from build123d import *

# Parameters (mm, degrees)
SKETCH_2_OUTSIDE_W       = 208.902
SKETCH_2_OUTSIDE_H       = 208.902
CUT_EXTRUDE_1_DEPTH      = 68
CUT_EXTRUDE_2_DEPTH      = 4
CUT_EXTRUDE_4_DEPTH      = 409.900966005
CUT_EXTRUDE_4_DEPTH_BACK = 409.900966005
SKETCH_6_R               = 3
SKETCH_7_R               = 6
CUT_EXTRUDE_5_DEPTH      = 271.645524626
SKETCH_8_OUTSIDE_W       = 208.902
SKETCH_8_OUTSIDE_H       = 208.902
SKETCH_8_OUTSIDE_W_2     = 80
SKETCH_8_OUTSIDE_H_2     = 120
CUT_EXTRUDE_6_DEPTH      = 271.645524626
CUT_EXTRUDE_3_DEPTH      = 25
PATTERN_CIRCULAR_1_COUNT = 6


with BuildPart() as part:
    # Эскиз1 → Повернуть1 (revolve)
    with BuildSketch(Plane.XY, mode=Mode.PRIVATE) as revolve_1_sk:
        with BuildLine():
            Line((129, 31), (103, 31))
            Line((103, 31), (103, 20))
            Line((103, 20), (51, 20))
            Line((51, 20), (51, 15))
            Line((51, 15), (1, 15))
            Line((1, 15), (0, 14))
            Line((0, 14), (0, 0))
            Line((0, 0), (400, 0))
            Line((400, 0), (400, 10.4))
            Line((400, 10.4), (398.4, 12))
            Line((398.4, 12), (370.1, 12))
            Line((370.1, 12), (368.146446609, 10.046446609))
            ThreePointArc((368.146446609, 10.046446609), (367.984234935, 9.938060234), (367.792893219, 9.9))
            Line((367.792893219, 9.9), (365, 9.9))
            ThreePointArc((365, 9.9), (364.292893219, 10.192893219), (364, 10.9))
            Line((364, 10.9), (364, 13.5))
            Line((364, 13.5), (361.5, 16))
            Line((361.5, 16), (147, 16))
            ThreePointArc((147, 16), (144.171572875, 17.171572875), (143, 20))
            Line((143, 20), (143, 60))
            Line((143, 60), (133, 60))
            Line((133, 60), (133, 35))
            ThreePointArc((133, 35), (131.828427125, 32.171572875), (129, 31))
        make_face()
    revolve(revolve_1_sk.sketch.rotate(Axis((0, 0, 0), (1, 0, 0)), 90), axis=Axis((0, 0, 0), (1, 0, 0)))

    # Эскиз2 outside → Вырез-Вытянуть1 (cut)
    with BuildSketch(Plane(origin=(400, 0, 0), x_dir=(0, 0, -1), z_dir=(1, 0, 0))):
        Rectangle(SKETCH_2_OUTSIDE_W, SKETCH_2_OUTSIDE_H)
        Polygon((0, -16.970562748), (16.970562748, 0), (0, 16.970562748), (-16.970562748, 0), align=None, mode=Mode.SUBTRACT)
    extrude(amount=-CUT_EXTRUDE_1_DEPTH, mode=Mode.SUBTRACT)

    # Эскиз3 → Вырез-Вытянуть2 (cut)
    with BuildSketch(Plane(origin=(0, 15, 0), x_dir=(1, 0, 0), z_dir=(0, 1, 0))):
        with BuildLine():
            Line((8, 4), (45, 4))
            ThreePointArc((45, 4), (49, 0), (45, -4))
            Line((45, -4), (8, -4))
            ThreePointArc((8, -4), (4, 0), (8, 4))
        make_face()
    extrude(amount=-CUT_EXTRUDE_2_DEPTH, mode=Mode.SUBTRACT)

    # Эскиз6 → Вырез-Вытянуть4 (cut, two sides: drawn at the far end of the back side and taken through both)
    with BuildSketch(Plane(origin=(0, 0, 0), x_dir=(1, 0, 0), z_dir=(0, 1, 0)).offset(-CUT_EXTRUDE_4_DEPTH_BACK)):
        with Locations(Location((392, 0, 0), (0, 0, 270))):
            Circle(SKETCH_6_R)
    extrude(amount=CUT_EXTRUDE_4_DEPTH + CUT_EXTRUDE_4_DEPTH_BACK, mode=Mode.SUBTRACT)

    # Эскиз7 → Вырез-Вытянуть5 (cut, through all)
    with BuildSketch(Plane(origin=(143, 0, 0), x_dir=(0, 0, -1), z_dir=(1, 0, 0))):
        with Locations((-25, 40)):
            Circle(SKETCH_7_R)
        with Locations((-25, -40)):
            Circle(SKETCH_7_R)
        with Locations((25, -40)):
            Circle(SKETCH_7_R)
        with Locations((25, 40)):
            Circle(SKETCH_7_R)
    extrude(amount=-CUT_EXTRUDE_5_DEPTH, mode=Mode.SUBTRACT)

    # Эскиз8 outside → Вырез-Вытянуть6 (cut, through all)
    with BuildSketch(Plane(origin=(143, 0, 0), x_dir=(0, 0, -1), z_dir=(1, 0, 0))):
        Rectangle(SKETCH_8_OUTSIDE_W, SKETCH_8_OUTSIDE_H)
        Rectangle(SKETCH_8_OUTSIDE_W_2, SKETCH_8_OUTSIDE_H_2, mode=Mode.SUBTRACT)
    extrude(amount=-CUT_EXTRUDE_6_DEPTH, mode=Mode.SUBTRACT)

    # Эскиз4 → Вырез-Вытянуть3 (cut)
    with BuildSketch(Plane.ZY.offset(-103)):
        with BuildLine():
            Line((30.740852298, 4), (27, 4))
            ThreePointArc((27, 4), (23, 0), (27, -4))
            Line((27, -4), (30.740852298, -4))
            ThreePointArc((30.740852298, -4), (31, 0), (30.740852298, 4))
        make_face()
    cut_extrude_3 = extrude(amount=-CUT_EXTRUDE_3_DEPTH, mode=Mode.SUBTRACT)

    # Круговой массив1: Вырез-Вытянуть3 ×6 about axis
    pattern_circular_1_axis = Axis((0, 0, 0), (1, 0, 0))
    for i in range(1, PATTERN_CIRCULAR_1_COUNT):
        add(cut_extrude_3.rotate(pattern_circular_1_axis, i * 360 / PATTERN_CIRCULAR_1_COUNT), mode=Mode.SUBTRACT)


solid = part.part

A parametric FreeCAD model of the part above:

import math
import FreeCAD as App
import Part
import Sketcher

V = App.Vector
Q = App.Units.Quantity

doc = App.newDocument("Part")
body = doc.addObject("PartDesign::Body", "Body")

# Sketch on XY plane
sketch1 = body.newObject("Sketcher::SketchObject", "Sketch")
sketch1.AttachmentSupport = (doc.getObject("XY_Plane"), [""])
sketch1.MapMode = "FlatFace"
sketch1.addGeometry(Part.LineSegment(V(129, 31, 0), V(103, 31, 0)), False)
sketch1.addGeometry(Part.LineSegment(V(103, 31, 0), V(103, 20, 0)), False)
sketch1.addGeometry(Part.LineSegment(V(103, 20, 0), V(51, 20, 0)), False)
sketch1.addGeometry(Part.LineSegment(V(51, 20, 0), V(51, 15, 0)), False)
sketch1.addGeometry(Part.LineSegment(V(51, 15, 0), V(1, 15, 0)), False)
sketch1.addGeometry(Part.LineSegment(V(1, 15, 0), V(0, 14, 0)), False)
sketch1.addGeometry(Part.LineSegment(V(0, 14, 0), V(0, 0, 0)), False)
sketch1.addGeometry(Part.LineSegment(V(0, 0, 0), V(400, 0, 0)), False)
sketch1.addGeometry(Part.LineSegment(V(400, 0, 0), V(400, 10.4, 0)), False)
sketch1.addGeometry(Part.LineSegment(V(400, 10.4, 0), V(398.4, 12, 0)), False)
sketch1.addGeometry(Part.LineSegment(V(398.4, 12, 0), V(370.1, 12, 0)), False)
sketch1.addGeometry(Part.LineSegment(V(370.1, 12, 0), V(368.146447, 10.046447, 0)), False)
sketch1.addGeometry(Part.ArcOfCircle(Part.Circle(V(367.792893, 10.4, 0), V(0, 0, 1), 0.5), math.radians(-90), math.radians(-45)), False)
sketch1.addGeometry(Part.LineSegment(V(367.792893, 9.9, 0), V(365, 9.9, 0)), False)
sketch1.addGeometry(Part.ArcOfCircle(Part.Circle(V(365, 10.9, 0), V(0, 0, 1), 1), math.radians(-180), math.radians(-90)), False)
sketch1.addGeometry(Part.LineSegment(V(364, 10.9, 0), V(364, 13.5, 0)), False)
sketch1.addGeometry(Part.LineSegment(V(364, 13.5, 0), V(361.5, 16, 0)), False)
sketch1.addGeometry(Part.LineSegment(V(361.5, 16, 0), V(147, 16, 0)), False)
sketch1.addGeometry(Part.ArcOfCircle(Part.Circle(V(147, 20, 0), V(0, 0, 1), 4), math.radians(180), math.radians(270)), False)
sketch1.addGeometry(Part.LineSegment(V(143, 20, 0), V(143, 60, 0)), False)
sketch1.addGeometry(Part.LineSegment(V(143, 60, 0), V(133, 60, 0)), False)
sketch1.addGeometry(Part.LineSegment(V(133, 60, 0), V(133, 35, 0)), False)
sketch1.addGeometry(Part.ArcOfCircle(Part.Circle(V(129, 35, 0), V(0, 0, 1), 4), math.radians(-90), math.radians(0)), False)
sketch1.addConstraint(Sketcher.Constraint("Coincident", 0, 2, 1, 1))
sketch1.addConstraint(Sketcher.Constraint("Coincident", 1, 2, 2, 1))
sketch1.addConstraint(Sketcher.Constraint("Coincident", 2, 2, 3, 1))
sketch1.addConstraint(Sketcher.Constraint("Coincident", 3, 2, 4, 1))
sketch1.addConstraint(Sketcher.Constraint("Coincident", 4, 2, 5, 1))
sketch1.addConstraint(Sketcher.Constraint("Coincident", 5, 2, 6, 1))
sketch1.addConstraint(Sketcher.Constraint("Coincident", 6, 2, 7, 1))
sketch1.addConstraint(Sketcher.Constraint("Coincident", 7, 2, 8, 1))
sketch1.addConstraint(Sketcher.Constraint("Coincident", 8, 2, 9, 1))
sketch1.addConstraint(Sketcher.Constraint("Coincident", 9, 2, 10, 1))
sketch1.addConstraint(Sketcher.Constraint("Coincident", 10, 2, 11, 1))
sketch1.addConstraint(Sketcher.Constraint("Tangent", 11, 2, 12, 2))
sketch1.addConstraint(Sketcher.Constraint("Tangent", 12, 1, 13, 1))
sketch1.addConstraint(Sketcher.Constraint("Tangent", 13, 2, 14, 2))
sketch1.addConstraint(Sketcher.Constraint("Tangent", 14, 1, 15, 1))
sketch1.addConstraint(Sketcher.Constraint("Coincident", 15, 2, 16, 1))
sketch1.addConstraint(Sketcher.Constraint("Coincident", 16, 2, 17, 1))
sketch1.addConstraint(Sketcher.Constraint("Tangent", 17, 2, 18, 2))
sketch1.addConstraint(Sketcher.Constraint("Tangent", 18, 1, 19, 1))
sketch1.addConstraint(Sketcher.Constraint("Coincident", 19, 2, 20, 1))
sketch1.addConstraint(Sketcher.Constraint("Coincident", 20, 2, 21, 1))
sketch1.addConstraint(Sketcher.Constraint("Tangent", 21, 2, 22, 2))
sketch1.addConstraint(Sketcher.Constraint("Tangent", 22, 1, 0, 1))
sketch1.addConstraint(Sketcher.Constraint("Horizontal", 0))
sketch1.addConstraint(Sketcher.Constraint("Vertical", 1))
sketch1.addConstraint(Sketcher.Constraint("Horizontal", 2))
sketch1.addConstraint(Sketcher.Constraint("Vertical", 3))
sketch1.addConstraint(Sketcher.Constraint("Horizontal", 4))
sketch1.addConstraint(Sketcher.Constraint("Vertical", 6))
sketch1.addConstraint(Sketcher.Constraint("Horizontal", 7))
sketch1.addConstraint(Sketcher.Constraint("Vertical", 8))
sketch1.addConstraint(Sketcher.Constraint("Horizontal", 10))
sketch1.addConstraint(Sketcher.Constraint("Horizontal", 13))
sketch1.addConstraint(Sketcher.Constraint("Vertical", 15))
sketch1.addConstraint(Sketcher.Constraint("Horizontal", 17))
sketch1.addConstraint(Sketcher.Constraint("Vertical", 19))
sketch1.addConstraint(Sketcher.Constraint("Horizontal", 20))
sketch1.addConstraint(Sketcher.Constraint("Vertical", 21))
sketch1.addConstraint(Sketcher.Constraint("Coincident", 6, 2, -1, 1))
sketch1.addConstraint(Sketcher.Constraint("Equal", 18, 22))
sketch1.addConstraint(Sketcher.Constraint("Perpendicular", 5, 9))
sketch1.addConstraint(Sketcher.Constraint("Perpendicular", 9, 11))
sketch1.addConstraint(Sketcher.Constraint("Perpendicular", 11, 16))
sketch1.addConstraint(Sketcher.Constraint("Horizontal", 18, 3, 1, 2))
sketch1.addConstraint(Sketcher.Constraint("Horizontal", 12, 3, 8, 2))
sketch1.addConstraint(Sketcher.Constraint("Radius", 14, Q("1 mm")))
sketch1.addConstraint(Sketcher.Constraint("Radius", 18, Q("4 mm")))
sketch1.addConstraint(Sketcher.Constraint("Radius", 12, Q("0.5 mm")))
sketch1.addConstraint(Sketcher.Constraint("DistanceX", 0, 2, 0, 1, Q("26 mm")))
sketch1.addConstraint(Sketcher.Constraint("DistanceX", 2, 2, 2, 1, Q("52 mm")))
sketch1.addConstraint(Sketcher.Constraint("DistanceX", 4, 2, 4, 1, Q("50 mm")))
sketch1.addConstraint(Sketcher.Constraint("DistanceX", 7, 1, 7, 2, Q("400 mm")))
sketch1.addConstraint(Sketcher.Constraint("DistanceX", 20, 2, 20, 1, Q("10 mm")))
sketch1.addConstraint(Sketcher.Constraint("DistanceY", 1, 2, 1, 1, Q("11 mm")))
sketch1.addConstraint(Sketcher.Constraint("DistanceY", 3, 2, 3, 1, Q("5 mm")))
sketch1.addConstraint(Sketcher.Constraint("DistanceY", 6, 2, 6, 1, Q("14 mm")))
sketch1.addConstraint(Sketcher.Constraint("DistanceY", 19, 1, 19, 2, Q("40 mm")))
sketch1.addConstraint(Sketcher.Constraint("Angle", 5, Q("-135 deg")))
sketch1.addConstraint(Sketcher.Constraint("DistanceX", 10, 2, 10, 1, Q("28.3 mm")))
sketch1.addConstraint(Sketcher.Constraint("DistanceX", 17, 2, 17, 1, Q("214.5 mm")))
sketch1.addConstraint(Sketcher.Constraint("DistanceY", 8, 1, 8, 2, Q("10.4 mm")))
sketch1.addConstraint(Sketcher.Constraint("DistanceY", 15, 1, 15, 2, Q("2.6 mm")))
sketch1.addConstraint(Sketcher.Constraint("DistanceX", -1, 1, 14, 3, Q("365 mm")))
sketch1.addConstraint(Sketcher.Constraint("DistanceY", -1, 1, 9, 2, Q("12 mm")))
revolution = body.newObject("PartDesign::Revolution", "Revolution")
revolution.Profile = sketch1
revolution.ReferenceAxis = (sketch1, ["H_Axis"])
revolution.Angle = 360

# Sketch on YZ plane
sketch2 = body.newObject("Sketcher::SketchObject", "Sketch001")
sketch2.AttachmentSupport = (doc.getObject("YZ_Plane"), [""])
sketch2.MapMode = "FlatFace"
sketch2.AttachmentOffset = App.Placement(V(0, 0, 400), App.Rotation())
sketch2.addGeometry(Part.LineSegment(V(104.451, 104.451, 0), V(-104.451, 104.451, 0)), False)
sketch2.addGeometry(Part.LineSegment(V(-104.451, 104.451, 0), V(-104.451, -104.451, 0)), False)
sketch2.addGeometry(Part.LineSegment(V(-104.451, -104.451, 0), V(104.451, -104.451, 0)), False)
sketch2.addGeometry(Part.LineSegment(V(104.451, -104.451, 0), V(104.451, 104.451, 0)), False)
sketch2.addGeometry(Part.LineSegment(V(0, -16.970563, 0), V(-16.970563, 0, 0)), False)
sketch2.addGeometry(Part.LineSegment(V(-16.970563, 0, 0), V(0, 16.970563, 0)), False)
sketch2.addGeometry(Part.LineSegment(V(0, 16.970563, 0), V(16.970563, 0, 0)), False)
sketch2.addGeometry(Part.LineSegment(V(16.970563, 0, 0), V(0, -16.970563, 0)), False)
sketch2.addConstraint(Sketcher.Constraint("Coincident", 0, 2, 1, 1))
sketch2.addConstraint(Sketcher.Constraint("Coincident", 1, 2, 2, 1))
sketch2.addConstraint(Sketcher.Constraint("Coincident", 2, 2, 3, 1))
sketch2.addConstraint(Sketcher.Constraint("Coincident", 3, 2, 0, 1))
sketch2.addConstraint(Sketcher.Constraint("Coincident", 4, 2, 5, 1))
sketch2.addConstraint(Sketcher.Constraint("Coincident", 5, 2, 6, 1))
sketch2.addConstraint(Sketcher.Constraint("Coincident", 6, 2, 7, 1))
sketch2.addConstraint(Sketcher.Constraint("Coincident", 7, 2, 4, 1))
sketch2.addConstraint(Sketcher.Constraint("Horizontal", 0))
sketch2.addConstraint(Sketcher.Constraint("Vertical", 1))
sketch2.addConstraint(Sketcher.Constraint("Horizontal", 2))
sketch2.addConstraint(Sketcher.Constraint("Vertical", 3))
sketch2.addConstraint(Sketcher.Constraint("Symmetric", 0, 2, 2, 2, -1, 1))
sketch2.addConstraint(Sketcher.Constraint("Symmetric", 4, 2, 6, 2, -1, 1))
sketch2.addConstraint(Sketcher.Constraint("Symmetric", 5, 2, 7, 2, -1, 1))
sketch2.addConstraint(Sketcher.Constraint("PointOnObject", 4, 2, -1))
sketch2.addConstraint(Sketcher.Constraint("PointOnObject", 5, 2, -2))
sketch2.addConstraint(Sketcher.Constraint("Perpendicular", 4, 5))
sketch2.addConstraint(Sketcher.Constraint("Equal", 2, 1))
sketch2.addConstraint(Sketcher.Constraint("Distance", 4, Q("24 mm")))
sketch2.addConstraint(Sketcher.Constraint("DistanceX", 0, 2, 0, 1, Q("208.902 mm")))
pocket1 = body.newObject("PartDesign::Pocket", "Pocket")
pocket1.Profile = sketch2
pocket1.Length = 68

# Sketch on XZ plane
sketch3 = body.newObject("Sketcher::SketchObject", "Sketch002")
sketch3.AttachmentSupport = (doc.getObject("XZ_Plane"), [""])
sketch3.MapMode = "FlatFace"
sketch3.AttachmentOffset = App.Placement(V(0, 0, -15), App.Rotation())
sketch3.addGeometry(Part.LineSegment(V(45, -4, 0), V(8, -4, 0)), False)
sketch3.addGeometry(Part.ArcOfCircle(Part.Circle(V(8, 0, 0), V(0, 0, 1), 4), math.radians(90), math.radians(270)), False)
sketch3.addGeometry(Part.LineSegment(V(8, 4, 0), V(45, 4, 0)), False)
sketch3.addGeometry(Part.ArcOfCircle(Part.Circle(V(45, 0, 0), V(0, 0, 1), 4), math.radians(-90), math.radians(90)), False)
sketch3.addConstraint(Sketcher.Constraint("Tangent", 0, 2, 1, 2))
sketch3.addConstraint(Sketcher.Constraint("Tangent", 1, 1, 2, 1))
sketch3.addConstraint(Sketcher.Constraint("Tangent", 2, 2, 3, 2))
sketch3.addConstraint(Sketcher.Constraint("Tangent", 3, 1, 0, 1))
sketch3.addConstraint(Sketcher.Constraint("Horizontal", 0))
sketch3.addConstraint(Sketcher.Constraint("Horizontal", 2))
sketch3.addConstraint(Sketcher.Constraint("PointOnObject", 1, 3, -1))
sketch3.addConstraint(Sketcher.Constraint("Radius", 1, Q("4 mm")))
sketch3.addConstraint(Sketcher.Constraint("DistanceX", 0, 2, 0, 1, Q("37 mm")))
sketch3.addConstraint(Sketcher.Constraint("DistanceX", -1, 1, 1, 3, Q("8 mm")))
pocket2 = body.newObject("PartDesign::Pocket", "Pocket001")
pocket2.Profile = sketch3
pocket2.Length = 4
pocket2.Reversed = True

# Sketch on XZ plane
sketch4 = body.newObject("Sketcher::SketchObject", "Sketch003")
sketch4.AttachmentSupport = (doc.getObject("XZ_Plane"), [""])
sketch4.MapMode = "FlatFace"
sketch4.addGeometry(Part.Circle(V(392, 0, 0), V(0, 0, 1), 3), False)
sketch4.addConstraint(Sketcher.Constraint("PointOnObject", 0, 3, -1))
sketch4.addConstraint(Sketcher.Constraint("Diameter", 0, Q("6 mm")))
sketch4.addConstraint(Sketcher.Constraint("DistanceX", -1, 1, 0, 3, Q("392 mm")))
pocket3 = body.newObject("PartDesign::Pocket", "Pocket002")
pocket3.Profile = sketch4
pocket3.Type = "ThroughAll"
pocket3.Midplane = True

# Sketch on YZ plane
sketch5 = body.newObject("Sketcher::SketchObject", "Sketch004")
sketch5.AttachmentSupport = (doc.getObject("YZ_Plane"), [""])
sketch5.MapMode = "FlatFace"
sketch5.AttachmentOffset = App.Placement(V(0, 0, 143), App.Rotation())
sketch5.addGeometry(Part.Circle(V(40, 25, 0), V(0, 0, 1), 6), False)
sketch5.addGeometry(Part.Circle(V(-40, 25, 0), V(0, 0, 1), 6), False)
sketch5.addGeometry(Part.Circle(V(-40, -25, 0), V(0, 0, 1), 6), False)
sketch5.addGeometry(Part.Circle(V(40, -25, 0), V(0, 0, 1), 6), False)
sketch5.addConstraint(Sketcher.Constraint("Equal", 0, 1))
sketch5.addConstraint(Sketcher.Constraint("Equal", 1, 2))
sketch5.addConstraint(Sketcher.Constraint("Equal", 2, 3))
sketch5.addConstraint(Sketcher.Constraint("Symmetric", 0, 3, 2, 3, -1, 1))
sketch5.addConstraint(Sketcher.Constraint("Symmetric", 1, 3, 3, 3, -1, 1))
sketch5.addConstraint(Sketcher.Constraint("Symmetric", 0, 3, 1, 3, -2))
sketch5.addConstraint(Sketcher.Constraint("Diameter", 0, Q("12 mm")))
sketch5.addConstraint(Sketcher.Constraint("DistanceX", -1, 1, 0, 3, Q("40 mm")))
sketch5.addConstraint(Sketcher.Constraint("DistanceY", -1, 1, 0, 3, Q("25 mm")))
pocket4 = body.newObject("PartDesign::Pocket", "Pocket003")
pocket4.Profile = sketch5
pocket4.Type = "ThroughAll"

# Sketch on YZ plane
sketch6 = body.newObject("Sketcher::SketchObject", "Sketch005")
sketch6.AttachmentSupport = (doc.getObject("YZ_Plane"), [""])
sketch6.MapMode = "FlatFace"
sketch6.AttachmentOffset = App.Placement(V(0, 0, 143), App.Rotation())
sketch6.addGeometry(Part.LineSegment(V(104.451, 104.451, 0), V(-104.451, 104.451, 0)), False)
sketch6.addGeometry(Part.LineSegment(V(-104.451, 104.451, 0), V(-104.451, -104.451, 0)), False)
sketch6.addGeometry(Part.LineSegment(V(-104.451, -104.451, 0), V(104.451, -104.451, 0)), False)
sketch6.addGeometry(Part.LineSegment(V(104.451, -104.451, 0), V(104.451, 104.451, 0)), False)
sketch6.addGeometry(Part.LineSegment(V(-60, -40, 0), V(-60, 40, 0)), False)
sketch6.addGeometry(Part.LineSegment(V(-60, 40, 0), V(60, 40, 0)), False)
sketch6.addGeometry(Part.LineSegment(V(60, 40, 0), V(60, -40, 0)), False)
sketch6.addGeometry(Part.LineSegment(V(60, -40, 0), V(-60, -40, 0)), False)
sketch6.addConstraint(Sketcher.Constraint("Coincident", 0, 2, 1, 1))
sketch6.addConstraint(Sketcher.Constraint("Coincident", 1, 2, 2, 1))
sketch6.addConstraint(Sketcher.Constraint("Coincident", 2, 2, 3, 1))
sketch6.addConstraint(Sketcher.Constraint("Coincident", 3, 2, 0, 1))
sketch6.addConstraint(Sketcher.Constraint("Coincident", 4, 2, 5, 1))
sketch6.addConstraint(Sketcher.Constraint("Coincident", 5, 2, 6, 1))
sketch6.addConstraint(Sketcher.Constraint("Coincident", 6, 2, 7, 1))
sketch6.addConstraint(Sketcher.Constraint("Coincident", 7, 2, 4, 1))
sketch6.addConstraint(Sketcher.Constraint("Horizontal", 0))
sketch6.addConstraint(Sketcher.Constraint("Vertical", 1))
sketch6.addConstraint(Sketcher.Constraint("Horizontal", 2))
sketch6.addConstraint(Sketcher.Constraint("Vertical", 3))
sketch6.addConstraint(Sketcher.Constraint("Vertical", 4))
sketch6.addConstraint(Sketcher.Constraint("Horizontal", 5))
sketch6.addConstraint(Sketcher.Constraint("Vertical", 6))
sketch6.addConstraint(Sketcher.Constraint("Horizontal", 7))
sketch6.addConstraint(Sketcher.Constraint("Symmetric", 0, 2, 2, 2, -1, 1))
sketch6.addConstraint(Sketcher.Constraint("Symmetric", 4, 2, 6, 2, -1, 1))
sketch6.addConstraint(Sketcher.Constraint("Equal", 2, 1))
sketch6.addConstraint(Sketcher.Constraint("DistanceX", 5, 1, 5, 2, Q("120 mm")))
sketch6.addConstraint(Sketcher.Constraint("DistanceY", 4, 1, 4, 2, Q("80 mm")))
sketch6.addConstraint(Sketcher.Constraint("DistanceX", 0, 2, 0, 1, Q("208.902 mm")))
pocket5 = body.newObject("PartDesign::Pocket", "Pocket004")
pocket5.Profile = sketch6
pocket5.Type = "ThroughAll"

# Sketch on YZ plane
sketch7 = body.newObject("Sketcher::SketchObject", "Sketch006")
sketch7.AttachmentSupport = (doc.getObject("YZ_Plane"), [""])
sketch7.MapMode = "FlatFace"
sketch7.AttachmentOffset = App.Placement(V(0, 0, 103), App.Rotation())
sketch7.addGeometry(Part.LineSegment(V(4, 30.740852, 0), V(4, 27, 0)), False)
sketch7.addGeometry(Part.ArcOfCircle(Part.Circle(V(0, 27, 0), V(0, 0, 1), 4), math.radians(180), math.radians(360)), False)
sketch7.addGeometry(Part.LineSegment(V(-4, 27, 0), V(-4, 30.740852, 0)), False)
sketch7.addGeometry(Part.ArcOfCircle(Part.Circle(V(0, 0, 0), V(0, 0, 1), 31), math.radians(82.586326), math.radians(97.413674)), False)
sketch7.addConstraint(Sketcher.Constraint("Tangent", 0, 2, 1, 2))
sketch7.addConstraint(Sketcher.Constraint("Tangent", 1, 1, 2, 1))
sketch7.addConstraint(Sketcher.Constraint("Coincident", 2, 2, 3, 2))
sketch7.addConstraint(Sketcher.Constraint("Coincident", 3, 1, 0, 1))
sketch7.addConstraint(Sketcher.Constraint("Vertical", 0))
sketch7.addConstraint(Sketcher.Constraint("Vertical", 2))
sketch7.addConstraint(Sketcher.Constraint("Coincident", 3, 3, -1, 1))
sketch7.addConstraint(Sketcher.Constraint("PointOnObject", 1, 3, -2))
sketch7.addConstraint(Sketcher.Constraint("Radius", 1, Q("4 mm")))
sketch7.addConstraint(Sketcher.Constraint("Radius", 3, Q("31 mm")))
sketch7.addConstraint(Sketcher.Constraint("DistanceY", -1, 1, 1, 3, Q("27 mm")))
pocket6 = body.newObject("PartDesign::Pocket", "Pocket005")
pocket6.Profile = sketch7
pocket6.Length = 25
pocket6.Reversed = True
doc.recompute()

polarpattern = body.newObject("PartDesign::PolarPattern", "PolarPattern")
polarpattern.Originals = [pocket6]
polarpattern.Axis = (doc.getObject("X_Axis"), [""])
polarpattern.Angle = 360
polarpattern.Occurrences = 6
body.Tip = polarpattern

doc.recompute()
